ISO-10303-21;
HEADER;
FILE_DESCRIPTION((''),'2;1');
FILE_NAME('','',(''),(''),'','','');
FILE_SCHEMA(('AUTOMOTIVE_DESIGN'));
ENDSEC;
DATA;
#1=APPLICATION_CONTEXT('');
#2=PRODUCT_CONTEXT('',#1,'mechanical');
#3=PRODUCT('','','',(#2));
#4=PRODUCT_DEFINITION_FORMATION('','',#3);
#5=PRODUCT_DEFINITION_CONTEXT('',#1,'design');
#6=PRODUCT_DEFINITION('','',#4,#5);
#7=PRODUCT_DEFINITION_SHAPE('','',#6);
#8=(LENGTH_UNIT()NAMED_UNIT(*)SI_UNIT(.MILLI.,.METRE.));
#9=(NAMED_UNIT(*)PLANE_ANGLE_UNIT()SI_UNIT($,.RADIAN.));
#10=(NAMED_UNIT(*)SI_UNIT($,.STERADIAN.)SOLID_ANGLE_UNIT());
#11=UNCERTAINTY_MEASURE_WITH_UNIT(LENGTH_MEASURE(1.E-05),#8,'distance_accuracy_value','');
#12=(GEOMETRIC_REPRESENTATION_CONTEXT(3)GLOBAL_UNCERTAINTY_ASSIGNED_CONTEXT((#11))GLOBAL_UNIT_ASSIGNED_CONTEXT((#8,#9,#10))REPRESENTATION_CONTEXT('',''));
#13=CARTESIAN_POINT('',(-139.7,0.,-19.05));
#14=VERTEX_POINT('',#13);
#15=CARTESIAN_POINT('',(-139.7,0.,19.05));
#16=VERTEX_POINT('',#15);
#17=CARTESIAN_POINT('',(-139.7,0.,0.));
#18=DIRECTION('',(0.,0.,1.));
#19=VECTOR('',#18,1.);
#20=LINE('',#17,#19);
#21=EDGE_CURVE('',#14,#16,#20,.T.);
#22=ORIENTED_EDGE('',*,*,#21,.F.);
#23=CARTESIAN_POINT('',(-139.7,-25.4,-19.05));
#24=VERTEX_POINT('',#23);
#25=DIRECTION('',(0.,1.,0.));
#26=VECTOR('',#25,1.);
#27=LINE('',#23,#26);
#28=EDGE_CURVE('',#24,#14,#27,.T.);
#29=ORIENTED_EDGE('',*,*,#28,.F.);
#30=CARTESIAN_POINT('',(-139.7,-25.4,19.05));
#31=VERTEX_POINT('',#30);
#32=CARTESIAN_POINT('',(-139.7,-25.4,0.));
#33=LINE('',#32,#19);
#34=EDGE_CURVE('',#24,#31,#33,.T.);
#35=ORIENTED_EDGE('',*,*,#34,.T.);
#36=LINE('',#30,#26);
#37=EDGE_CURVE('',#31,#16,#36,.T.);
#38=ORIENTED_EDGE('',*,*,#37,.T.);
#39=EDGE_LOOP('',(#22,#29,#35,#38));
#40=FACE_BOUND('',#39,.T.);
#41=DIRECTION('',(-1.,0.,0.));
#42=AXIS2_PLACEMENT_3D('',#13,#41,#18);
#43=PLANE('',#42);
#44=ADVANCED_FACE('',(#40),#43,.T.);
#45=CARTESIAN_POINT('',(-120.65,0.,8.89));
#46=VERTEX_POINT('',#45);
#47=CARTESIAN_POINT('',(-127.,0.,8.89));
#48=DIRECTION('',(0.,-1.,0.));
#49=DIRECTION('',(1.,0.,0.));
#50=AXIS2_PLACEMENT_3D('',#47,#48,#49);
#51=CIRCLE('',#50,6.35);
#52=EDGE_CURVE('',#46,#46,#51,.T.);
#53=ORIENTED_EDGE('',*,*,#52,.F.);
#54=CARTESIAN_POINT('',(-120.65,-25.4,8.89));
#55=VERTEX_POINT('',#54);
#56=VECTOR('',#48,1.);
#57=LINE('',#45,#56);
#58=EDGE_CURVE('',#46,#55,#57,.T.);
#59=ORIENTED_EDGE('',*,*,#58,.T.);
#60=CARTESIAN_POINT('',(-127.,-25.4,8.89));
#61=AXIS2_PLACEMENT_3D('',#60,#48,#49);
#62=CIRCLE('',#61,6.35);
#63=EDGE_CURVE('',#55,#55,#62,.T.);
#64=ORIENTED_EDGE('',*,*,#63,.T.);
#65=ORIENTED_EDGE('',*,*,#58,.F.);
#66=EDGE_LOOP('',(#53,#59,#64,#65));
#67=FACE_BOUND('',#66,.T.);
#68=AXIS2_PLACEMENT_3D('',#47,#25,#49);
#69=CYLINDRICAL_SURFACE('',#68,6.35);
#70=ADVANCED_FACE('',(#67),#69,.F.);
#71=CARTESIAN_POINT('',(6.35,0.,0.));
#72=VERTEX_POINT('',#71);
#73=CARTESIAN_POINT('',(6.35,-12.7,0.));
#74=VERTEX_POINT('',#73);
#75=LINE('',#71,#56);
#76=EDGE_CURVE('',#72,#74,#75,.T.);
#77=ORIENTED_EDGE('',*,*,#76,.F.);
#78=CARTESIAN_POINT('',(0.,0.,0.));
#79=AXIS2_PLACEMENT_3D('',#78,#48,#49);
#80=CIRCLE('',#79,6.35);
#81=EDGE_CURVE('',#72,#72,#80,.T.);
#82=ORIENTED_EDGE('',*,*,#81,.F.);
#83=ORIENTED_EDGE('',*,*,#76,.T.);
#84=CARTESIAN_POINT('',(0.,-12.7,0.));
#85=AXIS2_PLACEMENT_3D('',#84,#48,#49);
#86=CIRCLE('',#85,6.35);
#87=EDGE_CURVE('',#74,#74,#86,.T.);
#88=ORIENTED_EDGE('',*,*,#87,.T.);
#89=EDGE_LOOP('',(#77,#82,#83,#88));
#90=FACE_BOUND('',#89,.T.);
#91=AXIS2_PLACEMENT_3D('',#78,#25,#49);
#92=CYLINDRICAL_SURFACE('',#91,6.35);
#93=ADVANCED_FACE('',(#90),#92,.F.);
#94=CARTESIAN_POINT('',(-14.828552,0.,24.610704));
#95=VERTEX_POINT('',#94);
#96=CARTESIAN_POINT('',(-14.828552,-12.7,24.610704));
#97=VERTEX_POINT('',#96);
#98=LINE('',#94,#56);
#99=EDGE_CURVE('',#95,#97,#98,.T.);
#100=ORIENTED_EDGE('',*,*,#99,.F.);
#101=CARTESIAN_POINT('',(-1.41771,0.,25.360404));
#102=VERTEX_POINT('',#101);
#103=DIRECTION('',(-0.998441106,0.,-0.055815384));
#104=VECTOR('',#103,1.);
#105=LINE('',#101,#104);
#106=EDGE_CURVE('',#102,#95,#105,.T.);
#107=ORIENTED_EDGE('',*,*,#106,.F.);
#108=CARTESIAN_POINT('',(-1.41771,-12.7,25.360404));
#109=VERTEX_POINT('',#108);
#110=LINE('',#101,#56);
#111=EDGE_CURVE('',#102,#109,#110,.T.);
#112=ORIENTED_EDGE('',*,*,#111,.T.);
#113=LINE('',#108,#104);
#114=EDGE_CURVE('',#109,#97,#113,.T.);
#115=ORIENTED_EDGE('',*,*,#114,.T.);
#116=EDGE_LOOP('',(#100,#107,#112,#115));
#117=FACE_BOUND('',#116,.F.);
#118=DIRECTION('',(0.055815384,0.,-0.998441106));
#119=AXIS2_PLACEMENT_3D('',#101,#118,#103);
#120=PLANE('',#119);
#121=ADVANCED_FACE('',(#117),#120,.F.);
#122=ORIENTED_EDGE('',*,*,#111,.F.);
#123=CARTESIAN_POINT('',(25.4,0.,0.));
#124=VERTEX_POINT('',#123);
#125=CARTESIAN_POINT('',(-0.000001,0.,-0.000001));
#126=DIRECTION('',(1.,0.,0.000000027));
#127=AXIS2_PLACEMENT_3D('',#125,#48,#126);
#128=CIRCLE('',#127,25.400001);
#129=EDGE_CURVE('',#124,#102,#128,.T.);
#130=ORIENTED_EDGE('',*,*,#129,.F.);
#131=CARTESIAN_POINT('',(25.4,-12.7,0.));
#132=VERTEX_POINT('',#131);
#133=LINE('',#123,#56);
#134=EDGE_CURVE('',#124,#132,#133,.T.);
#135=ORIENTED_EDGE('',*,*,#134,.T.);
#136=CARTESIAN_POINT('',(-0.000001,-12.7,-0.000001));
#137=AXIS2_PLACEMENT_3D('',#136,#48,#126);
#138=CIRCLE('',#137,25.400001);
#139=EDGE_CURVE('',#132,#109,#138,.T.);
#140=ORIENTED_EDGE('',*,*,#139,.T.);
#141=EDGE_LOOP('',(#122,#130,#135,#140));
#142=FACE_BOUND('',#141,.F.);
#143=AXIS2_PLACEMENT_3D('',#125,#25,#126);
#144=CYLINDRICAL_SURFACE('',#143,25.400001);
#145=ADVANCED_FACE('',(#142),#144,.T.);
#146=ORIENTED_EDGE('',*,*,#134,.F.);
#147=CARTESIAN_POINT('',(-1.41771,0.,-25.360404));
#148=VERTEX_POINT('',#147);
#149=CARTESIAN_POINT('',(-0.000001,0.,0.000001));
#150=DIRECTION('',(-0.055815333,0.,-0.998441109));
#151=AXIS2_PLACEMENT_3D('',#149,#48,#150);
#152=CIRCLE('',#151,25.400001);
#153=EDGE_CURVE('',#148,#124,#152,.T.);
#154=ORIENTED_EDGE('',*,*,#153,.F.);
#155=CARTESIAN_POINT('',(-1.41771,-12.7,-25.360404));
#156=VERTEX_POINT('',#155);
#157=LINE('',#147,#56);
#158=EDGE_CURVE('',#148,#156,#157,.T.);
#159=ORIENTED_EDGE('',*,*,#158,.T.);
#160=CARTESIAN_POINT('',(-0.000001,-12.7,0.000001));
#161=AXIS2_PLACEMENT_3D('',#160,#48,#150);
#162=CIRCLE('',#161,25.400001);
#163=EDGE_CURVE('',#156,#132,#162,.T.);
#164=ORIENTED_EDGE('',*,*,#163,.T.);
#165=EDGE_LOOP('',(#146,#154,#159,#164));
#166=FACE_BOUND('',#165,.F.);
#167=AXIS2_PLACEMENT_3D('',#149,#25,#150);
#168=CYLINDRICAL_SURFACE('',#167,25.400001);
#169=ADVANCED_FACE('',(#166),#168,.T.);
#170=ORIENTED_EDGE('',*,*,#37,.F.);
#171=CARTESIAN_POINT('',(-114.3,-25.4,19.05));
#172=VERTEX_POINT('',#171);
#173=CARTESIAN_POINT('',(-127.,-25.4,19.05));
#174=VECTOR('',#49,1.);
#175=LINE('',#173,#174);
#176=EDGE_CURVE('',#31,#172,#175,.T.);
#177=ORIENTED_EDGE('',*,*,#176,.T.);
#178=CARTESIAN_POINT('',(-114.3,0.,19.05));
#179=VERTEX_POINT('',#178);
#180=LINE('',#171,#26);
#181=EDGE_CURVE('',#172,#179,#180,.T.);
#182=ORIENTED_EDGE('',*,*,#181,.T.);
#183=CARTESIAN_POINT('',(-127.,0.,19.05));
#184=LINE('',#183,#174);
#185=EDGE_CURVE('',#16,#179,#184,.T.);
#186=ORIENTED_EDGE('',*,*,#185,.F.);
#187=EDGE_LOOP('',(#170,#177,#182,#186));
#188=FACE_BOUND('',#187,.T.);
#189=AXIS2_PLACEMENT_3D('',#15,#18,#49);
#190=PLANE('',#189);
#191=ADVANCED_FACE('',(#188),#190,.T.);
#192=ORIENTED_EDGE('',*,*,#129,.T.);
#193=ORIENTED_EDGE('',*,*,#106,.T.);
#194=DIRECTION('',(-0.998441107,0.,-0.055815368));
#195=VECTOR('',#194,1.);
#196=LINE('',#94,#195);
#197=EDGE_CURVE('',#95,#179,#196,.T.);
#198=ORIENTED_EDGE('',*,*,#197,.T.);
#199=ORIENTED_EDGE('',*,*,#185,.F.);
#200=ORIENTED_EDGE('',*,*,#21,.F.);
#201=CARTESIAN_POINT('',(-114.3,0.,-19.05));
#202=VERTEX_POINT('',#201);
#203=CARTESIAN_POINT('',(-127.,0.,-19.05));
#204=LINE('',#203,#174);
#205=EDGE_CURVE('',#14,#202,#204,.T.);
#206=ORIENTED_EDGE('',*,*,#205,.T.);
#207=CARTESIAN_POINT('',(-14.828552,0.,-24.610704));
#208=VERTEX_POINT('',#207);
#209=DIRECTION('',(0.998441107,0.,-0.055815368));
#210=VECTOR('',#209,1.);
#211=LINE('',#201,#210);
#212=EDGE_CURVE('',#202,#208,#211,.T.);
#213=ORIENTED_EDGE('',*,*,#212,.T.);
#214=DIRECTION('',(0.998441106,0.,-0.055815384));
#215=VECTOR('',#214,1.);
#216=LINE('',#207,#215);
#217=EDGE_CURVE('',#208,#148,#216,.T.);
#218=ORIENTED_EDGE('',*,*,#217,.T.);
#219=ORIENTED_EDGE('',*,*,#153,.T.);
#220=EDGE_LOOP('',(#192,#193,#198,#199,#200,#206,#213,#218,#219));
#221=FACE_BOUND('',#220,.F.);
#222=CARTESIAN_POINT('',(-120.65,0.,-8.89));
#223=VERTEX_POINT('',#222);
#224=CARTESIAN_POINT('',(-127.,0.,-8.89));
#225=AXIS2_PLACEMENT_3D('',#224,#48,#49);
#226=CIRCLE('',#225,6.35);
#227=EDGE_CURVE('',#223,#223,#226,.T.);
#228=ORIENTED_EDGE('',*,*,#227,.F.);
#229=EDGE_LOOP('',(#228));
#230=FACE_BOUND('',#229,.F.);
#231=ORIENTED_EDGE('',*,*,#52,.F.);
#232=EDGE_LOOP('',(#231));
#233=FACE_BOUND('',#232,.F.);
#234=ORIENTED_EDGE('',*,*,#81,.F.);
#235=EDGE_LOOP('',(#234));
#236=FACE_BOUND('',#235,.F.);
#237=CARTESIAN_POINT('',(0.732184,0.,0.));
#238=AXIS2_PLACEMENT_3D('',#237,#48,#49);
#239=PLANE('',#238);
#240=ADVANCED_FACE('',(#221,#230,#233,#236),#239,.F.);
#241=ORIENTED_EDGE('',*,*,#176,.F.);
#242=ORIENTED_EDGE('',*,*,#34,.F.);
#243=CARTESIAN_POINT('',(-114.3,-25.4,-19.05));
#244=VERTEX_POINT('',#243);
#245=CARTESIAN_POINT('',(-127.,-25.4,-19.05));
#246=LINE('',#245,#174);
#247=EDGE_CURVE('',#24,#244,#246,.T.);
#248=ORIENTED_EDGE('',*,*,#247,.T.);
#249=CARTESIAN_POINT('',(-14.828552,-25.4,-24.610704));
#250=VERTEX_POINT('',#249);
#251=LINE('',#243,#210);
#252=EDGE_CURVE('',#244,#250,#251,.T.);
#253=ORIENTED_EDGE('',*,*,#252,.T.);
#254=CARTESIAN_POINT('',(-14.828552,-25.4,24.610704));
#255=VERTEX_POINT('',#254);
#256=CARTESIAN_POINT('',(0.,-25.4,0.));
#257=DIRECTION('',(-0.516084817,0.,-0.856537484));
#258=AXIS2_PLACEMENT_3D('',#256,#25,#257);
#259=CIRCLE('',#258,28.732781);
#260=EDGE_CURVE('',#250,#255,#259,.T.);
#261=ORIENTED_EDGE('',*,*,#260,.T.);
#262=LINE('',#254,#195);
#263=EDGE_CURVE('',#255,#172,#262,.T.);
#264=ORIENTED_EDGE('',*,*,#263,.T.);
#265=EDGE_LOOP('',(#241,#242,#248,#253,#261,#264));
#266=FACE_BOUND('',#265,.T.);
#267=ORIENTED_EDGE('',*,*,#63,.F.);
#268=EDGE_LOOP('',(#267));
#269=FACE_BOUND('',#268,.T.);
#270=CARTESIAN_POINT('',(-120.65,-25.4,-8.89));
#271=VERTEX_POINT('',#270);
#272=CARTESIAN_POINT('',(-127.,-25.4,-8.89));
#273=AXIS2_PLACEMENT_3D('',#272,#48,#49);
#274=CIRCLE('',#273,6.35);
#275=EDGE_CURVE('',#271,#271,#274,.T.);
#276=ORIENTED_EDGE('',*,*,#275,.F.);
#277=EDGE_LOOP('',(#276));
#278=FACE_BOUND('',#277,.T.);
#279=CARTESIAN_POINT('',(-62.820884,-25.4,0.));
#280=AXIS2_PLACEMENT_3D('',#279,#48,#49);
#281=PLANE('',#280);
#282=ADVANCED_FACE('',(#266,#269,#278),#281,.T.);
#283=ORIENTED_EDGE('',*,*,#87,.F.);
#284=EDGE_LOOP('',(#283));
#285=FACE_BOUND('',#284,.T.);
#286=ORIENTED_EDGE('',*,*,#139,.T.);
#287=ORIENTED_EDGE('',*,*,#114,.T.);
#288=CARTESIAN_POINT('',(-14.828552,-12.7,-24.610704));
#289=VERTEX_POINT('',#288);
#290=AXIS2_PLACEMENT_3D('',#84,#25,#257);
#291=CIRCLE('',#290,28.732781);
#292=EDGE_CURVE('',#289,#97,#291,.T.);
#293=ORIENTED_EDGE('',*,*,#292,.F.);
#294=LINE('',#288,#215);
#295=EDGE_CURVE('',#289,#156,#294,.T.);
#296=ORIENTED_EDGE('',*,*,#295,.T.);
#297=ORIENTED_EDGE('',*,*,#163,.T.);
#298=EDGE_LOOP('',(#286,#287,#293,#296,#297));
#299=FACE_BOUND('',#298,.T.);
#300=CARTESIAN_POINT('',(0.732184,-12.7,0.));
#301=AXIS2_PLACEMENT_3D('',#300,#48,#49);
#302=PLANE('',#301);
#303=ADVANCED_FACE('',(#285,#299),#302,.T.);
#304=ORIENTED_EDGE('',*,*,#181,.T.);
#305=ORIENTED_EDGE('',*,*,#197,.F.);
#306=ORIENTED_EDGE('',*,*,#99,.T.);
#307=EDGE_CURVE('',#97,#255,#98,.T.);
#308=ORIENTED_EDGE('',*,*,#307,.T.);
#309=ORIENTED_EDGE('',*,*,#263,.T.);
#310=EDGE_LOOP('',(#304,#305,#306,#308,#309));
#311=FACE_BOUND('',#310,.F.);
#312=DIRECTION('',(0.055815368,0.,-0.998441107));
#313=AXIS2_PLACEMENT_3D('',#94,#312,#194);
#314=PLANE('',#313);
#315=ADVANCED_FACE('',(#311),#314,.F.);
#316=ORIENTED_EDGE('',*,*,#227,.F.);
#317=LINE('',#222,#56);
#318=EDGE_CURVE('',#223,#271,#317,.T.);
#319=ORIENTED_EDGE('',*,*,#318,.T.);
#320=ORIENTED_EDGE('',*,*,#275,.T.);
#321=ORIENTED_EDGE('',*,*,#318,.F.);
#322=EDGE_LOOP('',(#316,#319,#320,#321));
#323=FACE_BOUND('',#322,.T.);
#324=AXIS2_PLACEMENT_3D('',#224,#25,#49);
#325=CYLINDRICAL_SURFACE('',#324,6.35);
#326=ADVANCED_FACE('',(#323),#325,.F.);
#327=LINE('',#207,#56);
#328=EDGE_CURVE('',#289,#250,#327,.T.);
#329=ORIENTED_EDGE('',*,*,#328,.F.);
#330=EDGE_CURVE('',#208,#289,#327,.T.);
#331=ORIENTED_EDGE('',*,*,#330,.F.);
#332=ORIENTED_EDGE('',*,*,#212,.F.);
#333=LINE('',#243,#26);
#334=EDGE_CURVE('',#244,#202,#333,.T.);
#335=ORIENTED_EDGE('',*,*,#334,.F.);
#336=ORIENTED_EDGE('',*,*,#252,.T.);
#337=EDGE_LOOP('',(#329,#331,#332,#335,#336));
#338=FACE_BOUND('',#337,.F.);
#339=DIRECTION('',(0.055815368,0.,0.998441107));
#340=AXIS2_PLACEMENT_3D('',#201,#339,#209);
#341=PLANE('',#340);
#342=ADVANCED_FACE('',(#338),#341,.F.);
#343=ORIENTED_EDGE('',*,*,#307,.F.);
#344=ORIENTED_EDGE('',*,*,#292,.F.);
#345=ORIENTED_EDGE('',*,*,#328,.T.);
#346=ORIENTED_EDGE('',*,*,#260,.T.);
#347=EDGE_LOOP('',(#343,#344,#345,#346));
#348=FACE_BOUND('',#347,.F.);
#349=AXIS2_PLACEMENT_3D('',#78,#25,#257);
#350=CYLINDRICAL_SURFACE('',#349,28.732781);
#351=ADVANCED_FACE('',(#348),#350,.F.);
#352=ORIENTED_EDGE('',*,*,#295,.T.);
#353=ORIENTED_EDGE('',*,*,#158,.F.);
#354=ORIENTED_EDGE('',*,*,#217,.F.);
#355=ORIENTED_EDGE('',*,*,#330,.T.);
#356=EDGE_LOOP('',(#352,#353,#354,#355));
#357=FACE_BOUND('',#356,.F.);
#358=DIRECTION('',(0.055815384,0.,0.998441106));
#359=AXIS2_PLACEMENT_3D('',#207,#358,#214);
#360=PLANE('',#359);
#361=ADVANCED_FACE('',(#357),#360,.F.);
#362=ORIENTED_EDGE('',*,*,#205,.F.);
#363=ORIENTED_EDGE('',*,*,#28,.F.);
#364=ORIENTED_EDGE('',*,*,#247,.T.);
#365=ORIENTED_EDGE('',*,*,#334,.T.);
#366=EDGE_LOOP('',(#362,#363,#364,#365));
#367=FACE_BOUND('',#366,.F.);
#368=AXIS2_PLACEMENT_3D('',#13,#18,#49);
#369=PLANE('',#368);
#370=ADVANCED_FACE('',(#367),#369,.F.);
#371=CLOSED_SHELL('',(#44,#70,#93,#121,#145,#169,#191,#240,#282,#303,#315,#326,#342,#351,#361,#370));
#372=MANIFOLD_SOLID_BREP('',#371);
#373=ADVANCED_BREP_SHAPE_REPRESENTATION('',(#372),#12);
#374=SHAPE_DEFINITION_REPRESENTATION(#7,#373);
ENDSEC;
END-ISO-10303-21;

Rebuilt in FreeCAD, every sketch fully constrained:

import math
import FreeCAD as App
import Part
import Sketcher
Q = App.Units.Quantity

doc = App.newDocument("Part")
body = doc.addObject("PartDesign::Body", "Body")

# Sketch on XZ plane
sketch1 = body.newObject("Sketcher::SketchObject", "Sketch")
sketch1.AttachmentSupport = (doc.getObject("XZ_Plane"), [""])
sketch1.MapMode = "FlatFace"
sketch1.addGeometry([
    Part.ArcOfCircle(Part.Circle(App.Vector(-0.000001, 0.000001, 0), App.Vector(0, 0, 1), 25.400001), math.radians(-93.199646), math.radians(-0.000002)),  # 0
    Part.ArcOfCircle(Part.Circle(App.Vector(-0.000001, -0.000001, 0), App.Vector(0, 0, 1), 25.400001), math.radians(0.000002), math.radians(93.199646)),  # 1
    Part.LineSegment(App.Vector(-1.41771, 25.360404, 0), App.Vector(-14.828552, 24.610704, 0)),  # 2
    Part.LineSegment(App.Vector(-14.828552, 24.610704, 0), App.Vector(-114.3, 19.05, 0)),  # 3
    Part.LineSegment(App.Vector(-114.3, 19.05, 0), App.Vector(-139.7, 19.05, 0)),  # 4
    Part.LineSegment(App.Vector(-139.7, 19.05, 0), App.Vector(-139.7, -19.05, 0)),  # 5
    Part.LineSegment(App.Vector(-139.7, -19.05, 0), App.Vector(-114.3, -19.05, 0)),  # 6
    Part.LineSegment(App.Vector(-114.3, -19.05, 0), App.Vector(-14.828552, -24.610704, 0)),  # 7
    Part.LineSegment(App.Vector(-14.828552, -24.610704, 0), App.Vector(-1.41771, -25.360404, 0)),  # 8
    Part.Circle(App.Vector(-127, -8.89, 0), App.Vector(0, 0, 1), 6.35),  # 9
    Part.Circle(App.Vector(-127, 8.89, 0), App.Vector(0, 0, 1), 6.35),  # 10
    Part.Circle(App.Vector(0, 0, 0), App.Vector(0, 0, 1), 6.35),  # 11
], False)
sketch1.addConstraint([
    Sketcher.Constraint("Tangent", 0, 2, 1, 1),
    Sketcher.Constraint("Tangent", 1, 2, 2, 1),
    Sketcher.Constraint("Coincident", 2, 2, 3, 1),
    Sketcher.Constraint("Coincident", 3, 2, 4, 1),
    Sketcher.Constraint("Coincident", 4, 2, 5, 1),
    Sketcher.Constraint("Coincident", 5, 2, 6, 1),
    Sketcher.Constraint("Coincident", 6, 2, 7, 1),
    Sketcher.Constraint("Coincident", 7, 2, 8, 1),
    Sketcher.Constraint("Tangent", 8, 2, 0, 1),
    Sketcher.Constraint("Horizontal", 4),
    Sketcher.Constraint("Vertical", 5),
    Sketcher.Constraint("Horizontal", 6),
    Sketcher.Constraint("Coincident", 0, 3, -1, 1),
    Sketcher.Constraint("Coincident", 11, 3, -1, 1),
    Sketcher.Constraint("Equal", 0, 1),
    Sketcher.Constraint("Equal", 9, 10),
    Sketcher.Constraint("Equal", 10, 11),
    Sketcher.Constraint("Symmetric", 9, 3, 10, 3, -1),
    Sketcher.Constraint("Symmetric", 3, 2, 6, 2, -1),
    Sketcher.Constraint("Symmetric", 2, 2, 7, 2, -1),
    Sketcher.Constraint("PointOnObject", 0, 2, -1),
    Sketcher.Constraint("Parallel", 2, 3),
    Sketcher.Constraint("Radius", 0, Q("1 in")),
    Sketcher.Constraint("Diameter", 9, Q("0.5 in")),
    Sketcher.Constraint("DistanceX", 4, 2, 4, 1, Q("1 in")),
    Sketcher.Constraint("DistanceY", 5, 2, 5, 1, Q("1.5 in")),
    Sketcher.Constraint("DistanceX", 9, 3, -1, 1, Q("5 in")),
    Sketcher.Constraint("DistanceX", 3, 2, -1, 1, Q("4.5 in")),
    Sketcher.Constraint("DistanceY", 9, 3, 10, 3, Q("0.7 in")),
    Sketcher.Constraint("DistanceY", 2, 2, 1, 2, 0.7497),
])
pad1 = body.newObject("PartDesign::Pad", "Pad")
pad1.Profile = sketch1
pad1.Length = Q("0.5 in")

# Sketch on XZ plane
sketch2 = body.newObject("Sketcher::SketchObject", "Sketch001")
sketch2.AttachmentSupport = (doc.getObject("XZ_Plane"), [""])
sketch2.MapMode = "FlatFace"
sketch2.addGeometry([
    Part.ArcOfCircle(Part.Circle(App.Vector(0, 0, 0), App.Vector(0, 0, 1), 28.732781), math.radians(121.069993), math.radians(238.930007)),  # 0
    Part.LineSegment(App.Vector(-14.828552, 24.610704, 0), App.Vector(-114.3, 19.05, 0)),  # 1
    Part.LineSegment(App.Vector(-114.3, 19.05, 0), App.Vector(-139.7, 19.05, 0)),  # 2
    Part.LineSegment(App.Vector(-139.7, 19.05, 0), App.Vector(-139.7, -19.05, 0)),  # 3
    Part.LineSegment(App.Vector(-139.7, -19.05, 0), App.Vector(-114.3, -19.05, 0)),  # 4
    Part.LineSegment(App.Vector(-114.3, -19.05, 0), App.Vector(-14.828552, -24.610704, 0)),  # 5
    Part.Circle(App.Vector(-127, -8.89, 0), App.Vector(0, 0, 1), 6.35),  # 6
    Part.Circle(App.Vector(-127, 8.89, 0), App.Vector(0, 0, 1), 6.35),  # 7
], False)
sketch2.addConstraint([
    Sketcher.Constraint("Coincident", 0, 1, 1, 1),
    Sketcher.Constraint("Coincident", 1, 2, 2, 1),
    Sketcher.Constraint("Coincident", 2, 2, 3, 1),
    Sketcher.Constraint("Coincident", 3, 2, 4, 1),
    Sketcher.Constraint("Coincident", 4, 2, 5, 1),
    Sketcher.Constraint("Coincident", 5, 2, 0, 2),
    Sketcher.Constraint("Horizontal", 2),
    Sketcher.Constraint("Vertical", 3),
    Sketcher.Constraint("Horizontal", 4),
    Sketcher.Constraint("Coincident", 0, 3, -1, 1),
    Sketcher.Constraint("Equal", 6, 7),
    Sketcher.Constraint("Symmetric", 6, 3, 7, 3, -1),
    Sketcher.Constraint("Symmetric", 1, 2, 4, 2, -1),
    Sketcher.Constraint("Vertical", 0, 1, 5, 2),
    Sketcher.Constraint("Diameter", 6, Q("0.5 in")),
    Sketcher.Constraint("DistanceX", 2, 2, 2, 1, Q("1 in")),
    Sketcher.Constraint("DistanceY", 3, 2, 3, 1, Q("1.5 in")),
    Sketcher.Constraint("DistanceX", 6, 3, -1, 1, Q("5 in")),
    Sketcher.Constraint("DistanceX", 1, 2, -1, 1, Q("4.5 in")),
    Sketcher.Constraint("DistanceY", 6, 3, 7, 3, Q("0.7 in")),
    Sketcher.Constraint("Radius", 0, 28.732781),
    Sketcher.Constraint("DistanceY", 5, 2, 0, 1, 49.221408),
])
pad2 = body.newObject("PartDesign::Pad", "Pad001")
pad2.Profile = sketch2
pad2.Length = Q("1 in")

doc.recompute()
